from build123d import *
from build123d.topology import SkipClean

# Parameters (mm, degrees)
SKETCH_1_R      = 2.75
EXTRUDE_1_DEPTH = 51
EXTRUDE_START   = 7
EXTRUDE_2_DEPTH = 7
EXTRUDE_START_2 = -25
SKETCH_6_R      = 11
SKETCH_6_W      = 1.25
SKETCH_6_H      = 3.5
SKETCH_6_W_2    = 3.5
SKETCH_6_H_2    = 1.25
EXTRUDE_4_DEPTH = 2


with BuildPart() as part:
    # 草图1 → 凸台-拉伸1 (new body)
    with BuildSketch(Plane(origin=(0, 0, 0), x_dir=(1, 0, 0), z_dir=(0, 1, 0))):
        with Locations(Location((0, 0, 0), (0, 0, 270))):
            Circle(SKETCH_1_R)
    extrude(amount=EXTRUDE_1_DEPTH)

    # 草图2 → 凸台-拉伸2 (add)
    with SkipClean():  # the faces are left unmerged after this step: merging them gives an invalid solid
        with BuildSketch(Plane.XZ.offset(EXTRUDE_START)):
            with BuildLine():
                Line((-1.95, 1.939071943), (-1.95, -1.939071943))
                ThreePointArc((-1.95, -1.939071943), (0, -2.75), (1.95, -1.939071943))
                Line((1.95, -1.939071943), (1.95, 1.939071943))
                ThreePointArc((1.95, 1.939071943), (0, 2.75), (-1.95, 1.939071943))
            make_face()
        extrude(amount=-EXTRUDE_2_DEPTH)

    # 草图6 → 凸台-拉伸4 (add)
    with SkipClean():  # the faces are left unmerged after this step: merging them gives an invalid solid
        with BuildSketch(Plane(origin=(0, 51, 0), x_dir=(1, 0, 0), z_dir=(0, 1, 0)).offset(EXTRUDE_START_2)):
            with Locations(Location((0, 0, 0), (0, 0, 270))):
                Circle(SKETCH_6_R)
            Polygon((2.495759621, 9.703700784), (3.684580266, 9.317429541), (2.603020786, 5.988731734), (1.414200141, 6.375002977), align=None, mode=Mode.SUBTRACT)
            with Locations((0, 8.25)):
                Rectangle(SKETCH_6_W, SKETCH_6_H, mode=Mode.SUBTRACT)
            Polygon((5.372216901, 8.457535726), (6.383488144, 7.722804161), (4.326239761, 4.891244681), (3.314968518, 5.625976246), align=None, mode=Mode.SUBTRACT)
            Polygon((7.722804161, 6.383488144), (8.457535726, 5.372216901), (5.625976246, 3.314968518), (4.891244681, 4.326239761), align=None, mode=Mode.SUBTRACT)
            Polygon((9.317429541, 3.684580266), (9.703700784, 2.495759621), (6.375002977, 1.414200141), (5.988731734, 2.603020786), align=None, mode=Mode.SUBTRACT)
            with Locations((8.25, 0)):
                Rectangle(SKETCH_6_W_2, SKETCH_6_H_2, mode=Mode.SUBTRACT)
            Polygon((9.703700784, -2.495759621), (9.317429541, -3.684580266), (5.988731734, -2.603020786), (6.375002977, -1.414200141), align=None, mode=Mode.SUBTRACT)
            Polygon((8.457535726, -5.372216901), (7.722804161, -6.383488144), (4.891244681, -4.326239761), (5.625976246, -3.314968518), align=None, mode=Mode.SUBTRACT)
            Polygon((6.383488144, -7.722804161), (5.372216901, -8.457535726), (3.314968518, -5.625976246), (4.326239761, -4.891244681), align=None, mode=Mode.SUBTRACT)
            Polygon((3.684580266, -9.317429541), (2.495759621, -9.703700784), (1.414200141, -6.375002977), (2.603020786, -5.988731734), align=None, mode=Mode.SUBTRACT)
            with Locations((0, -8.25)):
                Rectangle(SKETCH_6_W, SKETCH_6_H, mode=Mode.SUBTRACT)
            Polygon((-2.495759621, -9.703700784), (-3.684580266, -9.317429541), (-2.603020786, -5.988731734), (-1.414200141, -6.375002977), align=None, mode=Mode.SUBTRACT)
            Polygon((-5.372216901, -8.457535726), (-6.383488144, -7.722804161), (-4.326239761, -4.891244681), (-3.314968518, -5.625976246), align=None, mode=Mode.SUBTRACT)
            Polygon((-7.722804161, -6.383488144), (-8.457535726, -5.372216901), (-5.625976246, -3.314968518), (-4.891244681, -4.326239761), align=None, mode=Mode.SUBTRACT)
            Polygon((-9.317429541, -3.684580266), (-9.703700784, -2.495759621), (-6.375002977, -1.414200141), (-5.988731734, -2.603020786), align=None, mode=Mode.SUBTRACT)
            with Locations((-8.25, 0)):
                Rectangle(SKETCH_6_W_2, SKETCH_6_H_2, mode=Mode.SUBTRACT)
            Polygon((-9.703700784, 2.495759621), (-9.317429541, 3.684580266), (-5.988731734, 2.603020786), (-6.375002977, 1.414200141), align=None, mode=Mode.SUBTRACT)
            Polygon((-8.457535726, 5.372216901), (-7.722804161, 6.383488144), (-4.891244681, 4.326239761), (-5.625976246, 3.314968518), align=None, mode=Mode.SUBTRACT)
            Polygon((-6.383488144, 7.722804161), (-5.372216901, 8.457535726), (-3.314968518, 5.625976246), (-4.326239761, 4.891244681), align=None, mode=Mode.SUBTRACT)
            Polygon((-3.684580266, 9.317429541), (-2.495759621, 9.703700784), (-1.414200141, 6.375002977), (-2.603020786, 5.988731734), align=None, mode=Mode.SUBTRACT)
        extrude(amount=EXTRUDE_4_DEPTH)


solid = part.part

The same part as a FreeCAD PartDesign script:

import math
import FreeCAD as App
import Part
import Sketcher
from FreeCAD import Vector
Q = App.Units.Quantity

doc = App.newDocument("Part")
params = doc.addObject("Spreadsheet::Sheet", "Params")
for row, (alias, value) in enumerate([
    ("sketch1_diameter", "5.5 mm"),
    ("pad1_length", "51 mm"),
    ("sketch2_radius", "2.75 mm"),
    ("pad2_length", "7 mm"),
    ("sketch3_diameter", "22 mm"),
    ("sketch3_width", "3.5 mm"),
    ("sketch3_length", "3.5 mm"),
    ("sketch3_width2", "1.25 mm"),
    ("sketch3_length2", "1.25 mm"),
    ("pad3_length", "2 mm"),
], start=1):
    params.set(f"A{row}", alias)
    params.set(f"B{row}", "=" + value)
    params.setAlias(f"B{row}", alias)

body = doc.addObject("PartDesign::Body", "Body")

# Sketch on XZ plane
sketch1 = body.newObject("Sketcher::SketchObject", "Sketch")
sketch1.AttachmentSupport = (doc.getObject("XZ_Plane"), [""])
sketch1.MapMode = "FlatFace"
sketch1.addGeometry(Part.Circle(Vector(0, 0, 0), Vector(0, 0, 1), 2.8), False)
sketch1.addConstraint(Sketcher.Constraint("Coincident", 0, 3, -1, 1))
sketch1.addConstraint(Sketcher.Constraint("Diameter", 0, Q("5.5 mm")))
sketch1.setExpression("Constraints[1]", "Params.sketch1_diameter")
pad1 = body.newObject("PartDesign::Pad", "Pad")
pad1.Profile = sketch1
pad1.setExpression("Length", "Params.pad1_length")
pad1.Reversed = True

# Sketch on XZ plane
sketch2 = body.newObject("Sketcher::SketchObject", "Sketch001")
sketch2.AttachmentSupport = (doc.getObject("XZ_Plane"), [""])
sketch2.MapMode = "FlatFace"
sketch2.AttachmentOffset = App.Placement(Vector(0, 0, 7), App.Rotation())
sketch2.addGeometry(Part.LineSegment(Vector(-1.9, 1.9, 0), Vector(-1.9, -1.9, 0)), False)
sketch2.addGeometry(Part.ArcOfCircle(Part.Circle(Vector(0, 0, 0), Vector(0, 0, 1), 2.8), math.radians(-135), math.radians(-45)), False)
sketch2.addGeometry(Part.LineSegment(Vector(1.9, -1.9, 0), Vector(1.9, 1.9, 0)), False)
sketch2.addGeometry(Part.ArcOfCircle(Part.Circle(Vector(0, 0, 0), Vector(0, 0, 1), 2.8), math.radians(45), math.radians(135)), False)
sketch2.addConstraint(Sketcher.Constraint("Coincident", 0, 2, 1, 1))
sketch2.addConstraint(Sketcher.Constraint("Coincident", 1, 2, 2, 1))
sketch2.addConstraint(Sketcher.Constraint("Coincident", 2, 2, 3, 1))
sketch2.addConstraint(Sketcher.Constraint("Coincident", 3, 2, 0, 1))
sketch2.addConstraint(Sketcher.Constraint("Vertical", 0))
sketch2.addConstraint(Sketcher.Constraint("Vertical", 2))
sketch2.addConstraint(Sketcher.Constraint("Coincident", 1, 3, -1, 1))
sketch2.addConstraint(Sketcher.Constraint("Coincident", 3, 3, -1, 1))
sketch2.addConstraint(Sketcher.Constraint("Equal", 1, 3))
sketch2.addConstraint(Sketcher.Constraint("Horizontal", 0, 2, 1, 2))
sketch2.addConstraint(Sketcher.Constraint("Radius", 1, Q("2.75 mm")))
sketch2.addConstraint(Sketcher.Constraint("DistanceX", 0, 2, 1, 2, Q("3.9 mm")))
sketch2.setExpression("Constraints[10]", "Params.sketch2_radius")
pad2 = body.newObject("PartDesign::Pad", "Pad001")
pad2.Profile = sketch2
pad2.setExpression("Length", "Params.pad2_length")
pad2.Reversed = True

# Sketch on XZ plane
sketch3 = body.newObject("Sketcher::SketchObject", "Sketch002")
sketch3.AttachmentSupport = (doc.getObject("XZ_Plane"), [""])
sketch3.MapMode = "FlatFace"
sketch3.AttachmentOffset = App.Placement(Vector(0, 0, -26), App.Rotation())
sketch3.addGeometry(Part.Circle(Vector(0, 0, 0), Vector(0, 0, 1), 11), False)
sketch3.addGeometry(Part.LineSegment(Vector(-6.4, -1.4, 0), Vector(-9.7, -2.5, 0)), False)
sketch3.addGeometry(Part.LineSegment(Vector(-9.7, -2.5, 0), Vector(-9.3, -3.7, 0)), False)
sketch3.addGeometry(Part.LineSegment(Vector(-9.3, -3.7, 0), Vector(-6, -2.6, 0)), False)
sketch3.addGeometry(Part.LineSegment(Vector(-6, -2.6, 0), Vector(-6.4, -1.4, 0)), False)
sketch3.addGeometry(Part.LineSegment(Vector(-5.6, -3.3, 0), Vector(-8.5, -5.4, 0)), False)
sketch3.addGeometry(Part.LineSegment(Vector(-8.5, -5.4, 0), Vector(-7.7, -6.4, 0)), False)
sketch3.addGeometry(Part.LineSegment(Vector(-7.7, -6.4, 0), Vector(-4.9, -4.3, 0)), False)
sketch3.addGeometry(Part.LineSegment(Vector(-4.9, -4.3, 0), Vector(-5.6, -3.3, 0)), False)
sketch3.addGeometry(Part.LineSegment(Vector(-2.6, -6, 0), Vector(-3.7, -9.3, 0)), False)
sketch3.addGeometry(Part.LineSegment(Vector(-3.7, -9.3, 0), Vector(-2.5, -9.7, 0)), False)
sketch3.addGeometry(Part.LineSegment(Vector(-2.5, -9.7, 0), Vector(-1.4, -6.4, 0)), False)
sketch3.addGeometry(Part.LineSegment(Vector(-1.4, -6.4, 0), Vector(-2.6, -6, 0)), False)
sketch3.addGeometry(Part.LineSegment(Vector(-4.3, -4.9, 0), Vector(-6.4, -7.7, 0)), False)
sketch3.addGeometry(Part.LineSegment(Vector(-6.4, -7.7, 0), Vector(-5.4, -8.5, 0)), False)
sketch3.addGeometry(Part.LineSegment(Vector(-5.4, -8.5, 0), Vector(-3.3, -5.6, 0)), False)
sketch3.addGeometry(Part.LineSegment(Vector(-3.3, -5.6, 0), Vector(-4.3, -4.9, 0)), False)
sketch3.addGeometry(Part.LineSegment(Vector(0.6, -6.5, 0), Vector(-0.6, -6.5, 0)), False)
sketch3.addGeometry(Part.LineSegment(Vector(-0.6, -6.5, 0), Vector(-0.6, -10, 0)), False)
sketch3.addGeometry(Part.LineSegment(Vector(-0.6, -10, 0), Vector(0.6, -10, 0)), False)
sketch3.addGeometry(Part.LineSegment(Vector(0.6, -10, 0), Vector(0.6, -6.5, 0)), False)
sketch3.addGeometry(Part.LineSegment(Vector(-6.5, 0.6, 0), Vector(-10, 0.6, 0)), False)
sketch3.addGeometry(Part.LineSegment(Vector(-10, 0.6, 0), Vector(-10, -0.6, 0)), False)
sketch3.addGeometry(Part.LineSegment(Vector(-10, -0.6, 0), Vector(-6.5, -0.6, 0)), False)
sketch3.addGeometry(Part.LineSegment(Vector(-6.5, -0.6, 0), Vector(-6.5, 0.6, 0)), False)
sketch3.addGeometry(Part.LineSegment(Vector(-6, 2.6, 0), Vector(-9.3, 3.7, 0)), False)
sketch3.addGeometry(Part.LineSegment(Vector(-9.3, 3.7, 0), Vector(-9.7, 2.5, 0)), False)
sketch3.addGeometry(Part.LineSegment(Vector(-9.7, 2.5, 0), Vector(-6.4, 1.4, 0)), False)
sketch3.addGeometry(Part.LineSegment(Vector(-6.4, 1.4, 0), Vector(-6, 2.6, 0)), False)
sketch3.addGeometry(Part.LineSegment(Vector(-4.9, 4.3, 0), Vector(-7.7, 6.4, 0)), False)
sketch3.addGeometry(Part.LineSegment(Vector(-7.7, 6.4, 0), Vector(-8.5, 5.4, 0)), False)
sketch3.addGeometry(Part.LineSegment(Vector(-8.5, 5.4, 0), Vector(-5.6, 3.3, 0)), False)
sketch3.addGeometry(Part.LineSegment(Vector(-5.6, 3.3, 0), Vector(-4.9, 4.3, 0)), False)
sketch3.addGeometry(Part.LineSegment(Vector(-3.3, 5.6, 0), Vector(-5.4, 8.5, 0)), False)
sketch3.addGeometry(Part.LineSegment(Vector(-5.4, 8.5, 0), Vector(-6.4, 7.7, 0)), False)
sketch3.addGeometry(Part.LineSegment(Vector(-6.4, 7.7, 0), Vector(-4.3, 4.9, 0)), False)
sketch3.addGeometry(Part.LineSegment(Vector(-4.3, 4.9, 0), Vector(-3.3, 5.6, 0)), False)
sketch3.addGeometry(Part.LineSegment(Vector(-1.4, 6.4, 0), Vector(-2.5, 9.7, 0)), False)
sketch3.addGeometry(Part.LineSegment(Vector(-2.5, 9.7, 0), Vector(-3.7, 9.3, 0)), False)
sketch3.addGeometry(Part.LineSegment(Vector(-3.7, 9.3, 0), Vector(-2.6, 6, 0)), False)
sketch3.addGeometry(Part.LineSegment(Vector(-2.6, 6, 0), Vector(-1.4, 6.4, 0)), False)
sketch3.addGeometry(Part.LineSegment(Vector(1.4, -6.4, 0), Vector(2.5, -9.7, 0)), False)
sketch3.addGeometry(Part.LineSegment(Vector(2.5, -9.7, 0), Vector(3.7, -9.3, 0)), False)
sketch3.addGeometry(Part.LineSegment(Vector(3.7, -9.3, 0), Vector(2.6, -6, 0)), False)
sketch3.addGeometry(Part.LineSegment(Vector(2.6, -6, 0), Vector(1.4, -6.4, 0)), False)
sketch3.addGeometry(Part.LineSegment(Vector(3.3, -5.6, 0), Vector(5.4, -8.5, 0)), False)
sketch3.addGeometry(Part.LineSegment(Vector(5.4, -8.5, 0), Vector(6.4, -7.7, 0)), False)
sketch3.addGeometry(Part.LineSegment(Vector(6.4, -7.7, 0), Vector(4.3, -4.9, 0)), False)
sketch3.addGeometry(Part.LineSegment(Vector(4.3, -4.9, 0), Vector(3.3, -5.6, 0)), False)
sketch3.addGeometry(Part.LineSegment(Vector(4.9, -4.3, 0), Vector(7.7, -6.4, 0)), False)
sketch3.addGeometry(Part.LineSegment(Vector(7.7, -6.4, 0), Vector(8.5, -5.4, 0)), False)
sketch3.addGeometry(Part.LineSegment(Vector(8.5, -5.4, 0), Vector(5.6, -3.3, 0)), False)
sketch3.addGeometry(Part.LineSegment(Vector(5.6, -3.3, 0), Vector(4.9, -4.3, 0)), False)
sketch3.addGeometry(Part.LineSegment(Vector(6, -2.6, 0), Vector(9.3, -3.7, 0)), False)
sketch3.addGeometry(Part.LineSegment(Vector(9.3, -3.7, 0), Vector(9.7, -2.5, 0)), False)
sketch3.addGeometry(Part.LineSegment(Vector(9.7, -2.5, 0), Vector(6.4, -1.4, 0)), False)
sketch3.addGeometry(Part.LineSegment(Vector(6.4, -1.4, 0), Vector(6, -2.6, 0)), False)
sketch3.addGeometry(Part.LineSegment(Vector(10, 0.6, 0), Vector(6.5, 0.6, 0)), False)
sketch3.addGeometry(Part.LineSegment(Vector(6.5, 0.6, 0), Vector(6.5, -0.6, 0)), False)
sketch3.addGeometry(Part.LineSegment(Vector(6.5, -0.6, 0), Vector(10, -0.6, 0)), False)
sketch3.addGeometry(Part.LineSegment(Vector(10, -0.6, 0), Vector(10, 0.6, 0)), False)
sketch3.addGeometry(Part.LineSegment(Vector(0.6, 10, 0), Vector(-0.6, 10, 0)), False)
sketch3.addGeometry(Part.LineSegment(Vector(-0.6, 10, 0), Vector(-0.6, 6.5, 0)), False)
sketch3.addGeometry(Part.LineSegment(Vector(-0.6, 6.5, 0), Vector(0.6, 6.5, 0)), False)
sketch3.addGeometry(Part.LineSegment(Vector(0.6, 6.5, 0), Vector(0.6, 10, 0)), False)
sketch3.addGeometry(Part.LineSegment(Vector(4.3, 4.9, 0), Vector(6.4, 7.7, 0)), False)
sketch3.addGeometry(Part.LineSegment(Vector(6.4, 7.7, 0), Vector(5.4, 8.5, 0)), False)
sketch3.addGeometry(Part.LineSegment(Vector(5.4, 8.5, 0), Vector(3.3, 5.6, 0)), False)
sketch3.addGeometry(Part.LineSegment(Vector(3.3, 5.6, 0), Vector(4.3, 4.9, 0)), False)
sketch3.addGeometry(Part.LineSegment(Vector(2.6, 6, 0), Vector(3.7, 9.3, 0)), False)
sketch3.addGeometry(Part.LineSegment(Vector(3.7, 9.3, 0), Vector(2.5, 9.7, 0)), False)
sketch3.addGeometry(Part.LineSegment(Vector(2.5, 9.7, 0), Vector(1.4, 6.4, 0)), False)
sketch3.addGeometry(Part.LineSegment(Vector(1.4, 6.4, 0), Vector(2.6, 6, 0)), False)
sketch3.addGeometry(Part.LineSegment(Vector(5.6, 3.3, 0), Vector(8.5, 5.4, 0)), False)
sketch3.addGeometry(Part.LineSegment(Vector(8.5, 5.4, 0), Vector(7.7, 6.4, 0)), False)
sketch3.addGeometry(Part.LineSegment(Vector(7.7, 6.4, 0), Vector(4.9, 4.3, 0)), False)
sketch3.addGeometry(Part.LineSegment(Vector(4.9, 4.3, 0), Vector(5.6, 3.3, 0)), False)
sketch3.addGeometry(Part.LineSegment(Vector(6.4, 1.4, 0), Vector(9.7, 2.5, 0)), False)
sketch3.addGeometry(Part.LineSegment(Vector(9.7, 2.5, 0), Vector(9.3, 3.7, 0)), False)
sketch3.addGeometry(Part.LineSegment(Vector(9.3, 3.7, 0), Vector(6, 2.6, 0)), False)
sketch3.addGeometry(Part.LineSegment(Vector(6, 2.6, 0), Vector(6.4, 1.4, 0)), False)
sketch3.addConstraint(Sketcher.Constraint("Coincident", 1, 2, 2, 1))
sketch3.addConstraint(Sketcher.Constraint("Coincident", 2, 2, 3, 1))
sketch3.addConstraint(Sketcher.Constraint("Coincident", 3, 2, 4, 1))
sketch3.addConstraint(Sketcher.Constraint("Coincident", 4, 2, 1, 1))
sketch3.addConstraint(Sketcher.Constraint("Coincident", 5, 2, 6, 1))
sketch3.addConstraint(Sketcher.Constraint("Coincident", 6, 2, 7, 1))
sketch3.addConstraint(Sketcher.Constraint("Coincident", 7, 2, 8, 1))
sketch3.addConstraint(Sketcher.Constraint("Coincident", 8, 2, 5, 1))
sketch3.addConstraint(Sketcher.Constraint("Coincident", 9, 2, 10, 1))
sketch3.addConstraint(Sketcher.Constraint("Coincident", 10, 2, 11, 1))
sketch3.addConstraint(Sketcher.Constraint("Coincident", 11, 2, 12, 1))
sketch3.addConstraint(Sketcher.Constraint("Coincident", 12, 2, 9, 1))
sketch3.addConstraint(Sketcher.Constraint("Coincident", 13, 2, 14, 1))
sketch3.addConstraint(Sketcher.Constraint("Coincident", 14, 2, 15, 1))
sketch3.addConstraint(Sketcher.Constraint("Coincident", 15, 2, 16, 1))
sketch3.addConstraint(Sketcher.Constraint("Coincident", 16, 2, 13, 1))
sketch3.addConstraint(Sketcher.Constraint("Coincident", 17, 2, 18, 1))
sketch3.addConstraint(Sketcher.Constraint("Coincident", 18, 2, 19, 1))
sketch3.addConstraint(Sketcher.Constraint("Coincident", 19, 2, 20, 1))
sketch3.addConstraint(Sketcher.Constraint("Coincident", 20, 2, 17, 1))
sketch3.addConstraint(Sketcher.Constraint("Coincident", 21, 2, 22, 1))
sketch3.addConstraint(Sketcher.Constraint("Coincident", 22, 2, 23, 1))
sketch3.addConstraint(Sketcher.Constraint("Coincident", 23, 2, 24, 1))
sketch3.addConstraint(Sketcher.Constraint("Coincident", 24, 2, 21, 1))
sketch3.addConstraint(Sketcher.Constraint("Coincident", 25, 2, 26, 1))
sketch3.addConstraint(Sketcher.Constraint("Coincident", 26, 2, 27, 1))
sketch3.addConstraint(Sketcher.Constraint("Coincident", 27, 2, 28, 1))
sketch3.addConstraint(Sketcher.Constraint("Coincident", 28, 2, 25, 1))
sketch3.addConstraint(Sketcher.Constraint("Coincident", 29, 2, 30, 1))
sketch3.addConstraint(Sketcher.Constraint("Coincident", 30, 2, 31, 1))
sketch3.addConstraint(Sketcher.Constraint("Coincident", 31, 2, 32, 1))
sketch3.addConstraint(Sketcher.Constraint("Coincident", 32, 2, 29, 1))
sketch3.addConstraint(Sketcher.Constraint("Coincident", 33, 2, 34, 1))
sketch3.addConstraint(Sketcher.Constraint("Coincident", 34, 2, 35, 1))
sketch3.addConstraint(Sketcher.Constraint("Coincident", 35, 2, 36, 1))
sketch3.addConstraint(Sketcher.Constraint("Coincident", 36, 2, 33, 1))
sketch3.addConstraint(Sketcher.Constraint("Coincident", 37, 2, 38, 1))
sketch3.addConstraint(Sketcher.Constraint("Coincident", 38, 2, 39, 1))
sketch3.addConstraint(Sketcher.Constraint("Coincident", 39, 2, 40, 1))
sketch3.addConstraint(Sketcher.Constraint("Coincident", 40, 2, 37, 1))
sketch3.addConstraint(Sketcher.Constraint("Coincident", 41, 2, 42, 1))
sketch3.addConstraint(Sketcher.Constraint("Coincident", 42, 2, 43, 1))
sketch3.addConstraint(Sketcher.Constraint("Coincident", 43, 2, 44, 1))
sketch3.addConstraint(Sketcher.Constraint("Coincident", 44, 2, 41, 1))
sketch3.addConstraint(Sketcher.Constraint("Coincident", 45, 2, 46, 1))
sketch3.addConstraint(Sketcher.Constraint("Coincident", 46, 2, 47, 1))
sketch3.addConstraint(Sketcher.Constraint("Coincident", 47, 2, 48, 1))
sketch3.addConstraint(Sketcher.Constraint("Coincident", 48, 2, 45, 1))
sketch3.addConstraint(Sketcher.Constraint("Coincident", 49, 2, 50, 1))
sketch3.addConstraint(Sketcher.Constraint("Coincident", 50, 2, 51, 1))
sketch3.addConstraint(Sketcher.Constraint("Coincident", 51, 2, 52, 1))
sketch3.addConstraint(Sketcher.Constraint("Coincident", 52, 2, 49, 1))
sketch3.addConstraint(Sketcher.Constraint("Coincident", 53, 2, 54, 1))
sketch3.addConstraint(Sketcher.Constraint("Coincident", 54, 2, 55, 1))
sketch3.addConstraint(Sketcher.Constraint("Coincident", 55, 2, 56, 1))
sketch3.addConstraint(Sketcher.Constraint("Coincident", 56, 2, 53, 1))
sketch3.addConstraint(Sketcher.Constraint("Coincident", 57, 2, 58, 1))
sketch3.addConstraint(Sketcher.Constraint("Coincident", 58, 2, 59, 1))
sketch3.addConstraint(Sketcher.Constraint("Coincident", 59, 2, 60, 1))
sketch3.addConstraint(Sketcher.Constraint("Coincident", 60, 2, 57, 1))
sketch3.addConstraint(Sketcher.Constraint("Coincident", 61, 2, 62, 1))
sketch3.addConstraint(Sketcher.Constraint("Coincident", 62, 2, 63, 1))
sketch3.addConstraint(Sketcher.Constraint("Coincident", 63, 2, 64, 1))
sketch3.addConstraint(Sketcher.Constraint("Coincident", 64, 2, 61, 1))
sketch3.addConstraint(Sketcher.Constraint("Coincident", 65, 2, 66, 1))
sketch3.addConstraint(Sketcher.Constraint("Coincident", 66, 2, 67, 1))
sketch3.addConstraint(Sketcher.Constraint("Coincident", 67, 2, 68, 1))
sketch3.addConstraint(Sketcher.Constraint("Coincident", 68, 2, 65, 1))
sketch3.addConstraint(Sketcher.Constraint("Coincident", 69, 2, 70, 1))
sketch3.addConstraint(Sketcher.Constraint("Coincident", 70, 2, 71, 1))
sketch3.addConstraint(Sketcher.Constraint("Coincident", 71, 2, 72, 1))
sketch3.addConstraint(Sketcher.Constraint("Coincident", 72, 2, 69, 1))
sketch3.addConstraint(Sketcher.Constraint("Coincident", 73, 2, 74, 1))
sketch3.addConstraint(Sketcher.Constraint("Coincident", 74, 2, 75, 1))
sketch3.addConstraint(Sketcher.Constraint("Coincident", 75, 2, 76, 1))
sketch3.addConstraint(Sketcher.Constraint("Coincident", 76, 2, 73, 1))
sketch3.addConstraint(Sketcher.Constraint("Coincident", 77, 2, 78, 1))
sketch3.addConstraint(Sketcher.Constraint("Coincident", 78, 2, 79, 1))
sketch3.addConstraint(Sketcher.Constraint("Coincident", 79, 2, 80, 1))
sketch3.addConstraint(Sketcher.Constraint("Coincident", 80, 2, 77, 1))
sketch3.addConstraint(Sketcher.Constraint("Horizontal", 17))
sketch3.addConstraint(Sketcher.Constraint("Vertical", 18))
sketch3.addConstraint(Sketcher.Constraint("Horizontal", 19))
sketch3.addConstraint(Sketcher.Constraint("Vertical", 20))
sketch3.addConstraint(Sketcher.Constraint("Horizontal", 21))
sketch3.addConstraint(Sketcher.Constraint("Vertical", 22))
sketch3.addConstraint(Sketcher.Constraint("Horizontal", 23))
sketch3.addConstraint(Sketcher.Constraint("Vertical", 24))
sketch3.addConstraint(Sketcher.Constraint("Horizontal", 57))
sketch3.addConstraint(Sketcher.Constraint("Vertical", 58))
sketch3.addConstraint(Sketcher.Constraint("Horizontal", 59))
sketch3.addConstraint(Sketcher.Constraint("Vertical", 60))
sketch3.addConstraint(Sketcher.Constraint("Horizontal", 61))
sketch3.addConstraint(Sketcher.Constraint("Vertical", 62))
sketch3.addConstraint(Sketcher.Constraint("Horizontal", 63))
sketch3.addConstraint(Sketcher.Constraint("Vertical", 64))
sketch3.addConstraint(Sketcher.Constraint("Coincident", 0, 3, -1, 1))
sketch3.addConstraint(Sketcher.Constraint("Symmetric", 37, 2, 41, 2, -1, 1))
sketch3.addConstraint(Sketcher.Constraint("Symmetric", 38, 2, 42, 2, -1, 1))
sketch3.addConstraint(Sketcher.Constraint("Symmetric", 39, 2, 43, 2, -1, 1))
sketch3.addConstraint(Sketcher.Constraint("Symmetric", 40, 2, 44, 2, -1, 1))
sketch3.addConstraint(Sketcher.Constraint("Symmetric", 33, 2, 45, 2, -1, 1))
sketch3.addConstraint(Sketcher.Constraint("Symmetric", 34, 2, 46, 2, -1, 1))
sketch3.addConstraint(Sketcher.Constraint("Symmetric", 35, 2, 47, 2, -1, 1))
sketch3.addConstraint(Sketcher.Constraint("Symmetric", 36, 2, 48, 2, -1, 1))
sketch3.addConstraint(Sketcher.Constraint("Symmetric", 29, 2, 49, 2, -1, 1))
sketch3.addConstraint(Sketcher.Constraint("Symmetric", 30, 2, 50, 2, -1, 1))
sketch3.addConstraint(Sketcher.Constraint("Symmetric", 31, 2, 51, 2, -1, 1))
sketch3.addConstraint(Sketcher.Constraint("Symmetric", 32, 2, 52, 2, -1, 1))
sketch3.addConstraint(Sketcher.Constraint("Symmetric", 25, 2, 53, 2, -1, 1))
sketch3.addConstraint(Sketcher.Constraint("Symmetric", 26, 2, 54, 2, -1, 1))
sketch3.addConstraint(Sketcher.Constraint("Symmetric", 27, 2, 55, 2, -1, 1))
sketch3.addConstraint(Sketcher.Constraint("Symmetric", 28, 2, 56, 2, -1, 1))
sketch3.addConstraint(Sketcher.Constraint("Symmetric", 23, 2, 57, 2, -1, 1))
sketch3.addConstraint(Sketcher.Constraint("Symmetric", 21, 2, 59, 2, -1, 1))
sketch3.addConstraint(Sketcher.Constraint("Symmetric", 19, 2, 61, 2, -1, 1))
sketch3.addConstraint(Sketcher.Constraint("Symmetric", 17, 2, 63, 2, -1, 1))
sketch3.addConstraint(Sketcher.Constraint("Symmetric", 13, 2, 65, 2, -1, 1))
sketch3.addConstraint(Sketcher.Constraint("Symmetric", 14, 2, 66, 2, -1, 1))
sketch3.addConstraint(Sketcher.Constraint("Symmetric", 15, 2, 67, 2, -1, 1))
sketch3.addConstraint(Sketcher.Constraint("Symmetric", 16, 2, 68, 2, -1, 1))
sketch3.addConstraint(Sketcher.Constraint("Symmetric", 9, 2, 69, 2, -1, 1))
sketch3.addConstraint(Sketcher.Constraint("Symmetric", 10, 2, 70, 2, -1, 1))
sketch3.addConstraint(Sketcher.Constraint("Symmetric", 11, 2, 71, 2, -1, 1))
sketch3.addConstraint(Sketcher.Constraint("Symmetric", 12, 2, 72, 2, -1, 1))
sketch3.addConstraint(Sketcher.Constraint("Symmetric", 5, 2, 73, 2, -1, 1))
sketch3.addConstraint(Sketcher.Constraint("Symmetric", 6, 2, 74, 2, -1, 1))
sketch3.addConstraint(Sketcher.Constraint("Symmetric", 7, 2, 75, 2, -1, 1))
sketch3.addConstraint(Sketcher.Constraint("Symmetric", 8, 2, 76, 2, -1, 1))
sketch3.addConstraint(Sketcher.Constraint("Symmetric", 1, 2, 77, 2, -1, 1))
sketch3.addConstraint(Sketcher.Constraint("Symmetric", 2, 2, 78, 2, -1, 1))
sketch3.addConstraint(Sketcher.Constraint("Symmetric", 3, 2, 79, 2, -1, 1))
sketch3.addConstraint(Sketcher.Constraint("Symmetric", 4, 2, 80, 2, -1, 1))
sketch3.addConstraint(Sketcher.Constraint("Symmetric", 10, 2, 41, 2, -2))
sketch3.addConstraint(Sketcher.Constraint("Symmetric", 9, 2, 42, 2, -2))
sketch3.addConstraint(Sketcher.Constraint("Symmetric", 12, 2, 43, 2, -2))
sketch3.addConstraint(Sketcher.Constraint("Symmetric", 11, 2, 44, 2, -2))
sketch3.addConstraint(Sketcher.Constraint("Symmetric", 14, 2, 45, 2, -2))
sketch3.addConstraint(Sketcher.Constraint("Symmetric", 13, 2, 46, 2, -2))
sketch3.addConstraint(Sketcher.Constraint("Symmetric", 16, 2, 47, 2, -2))
sketch3.addConstraint(Sketcher.Constraint("Symmetric", 15, 2, 48, 2, -2))
sketch3.addConstraint(Sketcher.Constraint("Symmetric", 6, 2, 49, 2, -2))
sketch3.addConstraint(Sketcher.Constraint("Symmetric", 5, 2, 50, 2, -2))
sketch3.addConstraint(Sketcher.Constraint("Symmetric", 8, 2, 51, 2, -2))
sketch3.addConstraint(Sketcher.Constraint("Symmetric", 7, 2, 52, 2, -2))
sketch3.addConstraint(Sketcher.Constraint("Symmetric", 2, 2, 53, 2, -2))
sketch3.addConstraint(Sketcher.Constraint("Symmetric", 1, 2, 54, 2, -2))
sketch3.addConstraint(Sketcher.Constraint("Symmetric", 4, 2, 55, 2, -2))
sketch3.addConstraint(Sketcher.Constraint("Symmetric", 3, 2, 56, 2, -2))
sketch3.addConstraint(Sketcher.Constraint("Perpendicular", 1, 2))
sketch3.addConstraint(Sketcher.Constraint("Perpendicular", 2, 3))
sketch3.addConstraint(Sketcher.Constraint("Perpendicular", 3, 4))
sketch3.addConstraint(Sketcher.Constraint("Perpendicular", 5, 6))
sketch3.addConstraint(Sketcher.Constraint("Perpendicular", 6, 7))
sketch3.addConstraint(Sketcher.Constraint("Perpendicular", 7, 8))
sketch3.addConstraint(Sketcher.Constraint("Perpendicular", 9, 10))
sketch3.addConstraint(Sketcher.Constraint("Perpendicular", 10, 11))
sketch3.addConstraint(Sketcher.Constraint("Perpendicular", 11, 12))
sketch3.addConstraint(Sketcher.Constraint("Perpendicular", 13, 14))
sketch3.addConstraint(Sketcher.Constraint("Perpendicular", 14, 15))
sketch3.addConstraint(Sketcher.Constraint("Perpendicular", 15, 16))
sketch3.addConstraint(Sketcher.Constraint("Parallel", 12, 25))
sketch3.addConstraint(Sketcher.Constraint("Parallel", 16, 29))
sketch3.addConstraint(Sketcher.Constraint("Horizontal", 24, 2, 57, 2))
sketch3.addConstraint(Sketcher.Constraint("Vertical", 18, 2, 61, 2))
sketch3.addConstraint(Sketcher.Constraint("Equal", 59, 18))
sketch3.addConstraint(Sketcher.Constraint("Equal", 63, 22))
sketch3.addConstraint(Sketcher.Constraint("Equal", 3, 5))
sketch3.addConstraint(Sketcher.Constraint("Equal", 4, 6))
sketch3.addConstraint(Sketcher.Constraint("Equal", 7, 9))
sketch3.addConstraint(Sketcher.Constraint("Equal", 8, 10))
sketch3.addConstraint(Sketcher.Constraint("Equal", 11, 13))
sketch3.addConstraint(Sketcher.Constraint("Equal", 12, 14))
sketch3.addConstraint(Sketcher.Constraint("Diameter", 0, Q("22 mm")))
sketch3.addConstraint(Sketcher.Constraint("Angle", 1, Q("-162 deg")))
sketch3.addConstraint(Sketcher.Constraint("Angle", 5, Q("-144 deg")))
sketch3.addConstraint(Sketcher.Constraint("DistanceX", 21, 2, 21, 1, Q("3.5 mm")))
sketch3.addConstraint(Sketcher.Constraint("DistanceY", 18, 2, -1, 1, Q("10 mm")))
sketch3.addConstraint(Sketcher.Constraint("DistanceX", 21, 2, -1, 1, Q("10 mm")))
sketch3.addConstraint(Sketcher.Constraint("Distance", 1, Q("3.5 mm")))
sketch3.addConstraint(Sketcher.Constraint("DistanceX", 17, 2, 17, 1, Q("1.25 mm")))
sketch3.addConstraint(Sketcher.Constraint("Distance", 2, Q("1.25 mm")))
sketch3.addConstraint(Sketcher.Constraint("DistanceX", 1, 2, -1, 1, Q("9.703701 mm")))
sketch3.addConstraint(Sketcher.Constraint("DistanceY", 4, 2, -1, 1, Q("1.4142 mm")))
sketch3.addConstraint(Sketcher.Constraint("DistanceY", 10, 2, -1, 1, Q("9.703701 mm")))
sketch3.addConstraint(Sketcher.Constraint("DistanceX", 11, 2, -1, 1, Q("1.4142 mm")))
sketch3.addConstraint(Sketcher.Constraint("DistanceY", 6, 2, -1, 1, Q("6.383488 mm")))
sketch3.addConstraint(Sketcher.Constraint("DistanceX", 13, 2, -1, 1, Q("6.383488 mm")))
sketch3.addConstraint(Sketcher.Constraint("DistanceX", 5, 2, -1, 1, Q("8.457536 mm")))
sketch3.addConstraint(Sketcher.Constraint("DistanceY", 13, 2, -1, 1, Q("7.722804 mm")))
sketch3.setExpression("Constraints[173]", "Params.sketch3_diameter")
sketch3.setExpression("Constraints[176]", "Params.sketch3_width")
sketch3.setExpression("Constraints[179]", "Params.sketch3_length")
sketch3.setExpression("Constraints[180]", "Params.sketch3_width2")
sketch3.setExpression("Constraints[181]", "Params.sketch3_length2")
pad3 = body.newObject("PartDesign::Pad", "Pad002")
pad3.Profile = sketch3
pad3.setExpression("Length", "Params.pad3_length")
pad3.Reversed = True

doc.recompute()
